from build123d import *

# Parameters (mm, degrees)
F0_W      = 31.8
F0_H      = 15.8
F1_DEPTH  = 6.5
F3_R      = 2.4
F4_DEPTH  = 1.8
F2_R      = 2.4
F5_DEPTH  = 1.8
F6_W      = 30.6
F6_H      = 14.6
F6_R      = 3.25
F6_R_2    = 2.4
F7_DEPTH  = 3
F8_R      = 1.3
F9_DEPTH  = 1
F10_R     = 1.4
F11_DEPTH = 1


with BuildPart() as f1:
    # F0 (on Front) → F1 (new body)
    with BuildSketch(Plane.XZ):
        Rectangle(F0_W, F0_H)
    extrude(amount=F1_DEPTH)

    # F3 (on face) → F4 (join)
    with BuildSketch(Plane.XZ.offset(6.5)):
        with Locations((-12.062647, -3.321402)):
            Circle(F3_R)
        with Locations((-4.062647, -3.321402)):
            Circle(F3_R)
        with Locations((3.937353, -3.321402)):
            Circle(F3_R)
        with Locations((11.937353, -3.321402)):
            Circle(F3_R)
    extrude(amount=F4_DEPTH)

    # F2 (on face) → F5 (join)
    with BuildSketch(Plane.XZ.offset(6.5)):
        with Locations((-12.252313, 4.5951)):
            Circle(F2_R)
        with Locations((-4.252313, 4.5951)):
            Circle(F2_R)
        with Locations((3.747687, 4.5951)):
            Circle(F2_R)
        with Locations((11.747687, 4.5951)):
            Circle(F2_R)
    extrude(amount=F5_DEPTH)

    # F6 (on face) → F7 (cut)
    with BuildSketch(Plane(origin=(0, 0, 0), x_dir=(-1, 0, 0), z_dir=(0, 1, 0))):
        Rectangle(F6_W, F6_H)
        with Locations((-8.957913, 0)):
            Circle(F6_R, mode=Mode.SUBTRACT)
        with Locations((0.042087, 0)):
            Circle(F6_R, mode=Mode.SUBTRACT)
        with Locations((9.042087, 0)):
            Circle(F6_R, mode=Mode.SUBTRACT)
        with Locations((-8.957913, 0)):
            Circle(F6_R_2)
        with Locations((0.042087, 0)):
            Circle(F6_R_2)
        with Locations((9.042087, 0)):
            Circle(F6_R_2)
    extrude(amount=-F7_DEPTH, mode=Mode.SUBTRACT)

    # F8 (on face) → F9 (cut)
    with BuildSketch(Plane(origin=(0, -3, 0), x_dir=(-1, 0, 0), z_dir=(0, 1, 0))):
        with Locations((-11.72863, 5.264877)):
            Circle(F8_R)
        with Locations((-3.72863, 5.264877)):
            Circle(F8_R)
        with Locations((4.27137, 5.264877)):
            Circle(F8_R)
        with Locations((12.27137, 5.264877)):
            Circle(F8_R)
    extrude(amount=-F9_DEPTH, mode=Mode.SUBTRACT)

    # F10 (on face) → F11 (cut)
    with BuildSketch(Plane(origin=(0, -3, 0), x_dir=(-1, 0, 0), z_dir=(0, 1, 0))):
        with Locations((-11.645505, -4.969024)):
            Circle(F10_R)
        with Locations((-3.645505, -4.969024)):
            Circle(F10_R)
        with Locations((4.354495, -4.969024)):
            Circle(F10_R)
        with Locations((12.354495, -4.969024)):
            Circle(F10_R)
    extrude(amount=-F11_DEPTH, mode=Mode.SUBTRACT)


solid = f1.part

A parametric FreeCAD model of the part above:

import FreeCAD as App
import Part
import Sketcher
from FreeCAD import Vector
Q = App.Units.Quantity

doc = App.newDocument("Part")
params = doc.addObject("Spreadsheet::Sheet", "Params")
for row, (alias, value) in enumerate([
    ("sketch1_width", "31.8 mm"),
    ("sketch1_height", "15.8 mm"),
    ("pad1_length", "6.5 mm"),
    ("sketch2_diameter", "4.8 mm"),
    ("pad2_length", "1.8 mm"),
    ("sketch3_diameter", "4.8 mm"),
    ("pad3_length", "1.8 mm"),
    ("sketch4_diameter", "6.5 mm"),
    ("sketch4_diameter2", "4.8 mm"),
    ("sketch4_width", "30.6 mm"),
    ("sketch4_height", "14.6 mm"),
    ("pocket1_length", "3 mm"),
    ("sketch5_diameter", "2.6 mm"),
    ("pocket2_length", "1 mm"),
    ("sketch6_diameter", "2.8 mm"),
    ("pocket3_length", "1 mm"),
], start=1):
    params.set(f"A{row}", alias)
    params.set(f"B{row}", "=" + value)
    params.setAlias(f"B{row}", alias)

body = doc.addObject("PartDesign::Body", "Body")

# Sketch on XZ plane
sketch1 = body.newObject("Sketcher::SketchObject", "Sketch")
sketch1.AttachmentSupport = (doc.getObject("XZ_Plane"), [""])
sketch1.MapMode = "FlatFace"
sketch1.addGeometry([
    Part.LineSegment(Vector(-15.9, 7.9, 0), Vector(-15.9, -7.9, 0)),
    Part.LineSegment(Vector(-15.9, -7.9, 0), Vector(15.9, -7.9, 0)),
    Part.LineSegment(Vector(15.9, -7.9, 0), Vector(15.9, 7.9, 0)),
    Part.LineSegment(Vector(15.9, 7.9, 0), Vector(-15.9, 7.9, 0)),
], False)
sketch1.addConstraint([
    Sketcher.Constraint("Coincident", 0, 2, 1, 1),
    Sketcher.Constraint("Coincident", 1, 2, 2, 1),
    Sketcher.Constraint("Coincident", 2, 2, 3, 1),
    Sketcher.Constraint("Coincident", 3, 2, 0, 1),
    Sketcher.Constraint("Vertical", 0),
    Sketcher.Constraint("Horizontal", 1),
    Sketcher.Constraint("Vertical", 2),
    Sketcher.Constraint("Horizontal", 3),
    Sketcher.Constraint("Symmetric", 0, 2, 2, 2, -1, 1),
    Sketcher.Constraint("DistanceX", 1, 1, 1, 2, Q("31.8 mm")),
    Sketcher.Constraint("DistanceY", 0, 2, 0, 1, Q("15.8 mm")),
])
sketch1.setExpression("Constraints[9]", "Params.sketch1_width")
sketch1.setExpression("Constraints[10]", "Params.sketch1_height")
pad1 = body.newObject("PartDesign::Pad", "Pad")
pad1.Profile = sketch1
pad1.setExpression("Length", "Params.pad1_length")

# Sketch on XZ plane
sketch2 = body.newObject("Sketcher::SketchObject", "Sketch001")
sketch2.AttachmentSupport = (doc.getObject("XZ_Plane"), [""])
sketch2.MapMode = "FlatFace"
sketch2.AttachmentOffset = App.Placement(Vector(0, 0, 6.5), App.Rotation())
sketch2.addGeometry([
    Part.Circle(Vector(-12.062647, -3.321402, 0), Vector(0, 0, 1), 2.4),
    Part.Circle(Vector(-4.062647, -3.321402, 0), Vector(0, 0, 1), 2.4),
    Part.Circle(Vector(3.937353, -3.321402, 0), Vector(0, 0, 1), 2.4),
    Part.Circle(Vector(11.937353, -3.321402, 0), Vector(0, 0, 1), 2.4),
], False)
sketch2.addConstraint([
    Sketcher.Constraint("Equal", 0, 1),
    Sketcher.Constraint("Equal", 1, 2),
    Sketcher.Constraint("Equal", 2, 3),
    Sketcher.Constraint("Horizontal", 0, 3, 1, 3),
    Sketcher.Constraint("Horizontal", 1, 3, 2, 3),
    Sketcher.Constraint("Horizontal", 2, 3, 3, 3),
    Sketcher.Constraint("Diameter", 0, Q("4.8 mm")),
    Sketcher.Constraint("DistanceX", 0, 3, 1, 3, Q("8 mm")),
    Sketcher.Constraint("DistanceX", 1, 3, 2, 3, Q("8 mm")),
    Sketcher.Constraint("DistanceX", 2, 3, 3, 3, Q("8 mm")),
    Sketcher.Constraint("DistanceY", 0, 3, -1, 1, Q("3.321402 mm")),
    Sketcher.Constraint("DistanceX", 0, 3, -1, 1, Q("12.062647 mm")),
])
sketch2.setExpression("Constraints[6]", "Params.sketch2_diameter")
pad2 = body.newObject("PartDesign::Pad", "Pad001")
pad2.Profile = sketch2
pad2.setExpression("Length", "Params.pad2_length")

# Sketch on XZ plane
sketch3 = body.newObject("Sketcher::SketchObject", "Sketch002")
sketch3.AttachmentSupport = (doc.getObject("XZ_Plane"), [""])
sketch3.MapMode = "FlatFace"
sketch3.AttachmentOffset = App.Placement(Vector(0, 0, 6.5), App.Rotation())
sketch3.addGeometry([
    Part.Circle(Vector(-12.252313, 4.5951, 0), Vector(0, 0, 1), 2.4),
    Part.Circle(Vector(-4.252313, 4.5951, 0), Vector(0, 0, 1), 2.4),
    Part.Circle(Vector(3.747687, 4.5951, 0), Vector(0, 0, 1), 2.4),
    Part.Circle(Vector(11.747687, 4.5951, 0), Vector(0, 0, 1), 2.4),
], False)
sketch3.addConstraint([
    Sketcher.Constraint("Equal", 0, 1),
    Sketcher.Constraint("Equal", 1, 2),
    Sketcher.Constraint("Equal", 2, 3),
    Sketcher.Constraint("Horizontal", 0, 3, 1, 3),
    Sketcher.Constraint("Horizontal", 1, 3, 2, 3),
    Sketcher.Constraint("Horizontal", 2, 3, 3, 3),
    Sketcher.Constraint("Diameter", 0, Q("4.8 mm")),
    Sketcher.Constraint("DistanceX", 0, 3, 1, 3, Q("8 mm")),
    Sketcher.Constraint("DistanceX", 1, 3, 2, 3, Q("8 mm")),
    Sketcher.Constraint("DistanceX", 2, 3, 3, 3, Q("8 mm")),
    Sketcher.Constraint("DistanceY", -1, 1, 0, 3, Q("4.5951 mm")),
    Sketcher.Constraint("DistanceX", 0, 3, -1, 1, Q("12.252313 mm")),
])
sketch3.setExpression("Constraints[6]", "Params.sketch3_diameter")
pad3 = body.newObject("PartDesign::Pad", "Pad002")
pad3.Profile = sketch3
pad3.setExpression("Length", "Params.pad3_length")

# Sketch on XZ plane
sketch4 = body.newObject("Sketcher::SketchObject", "Sketch003")
sketch4.AttachmentSupport = (doc.getObject("XZ_Plane"), [""])
sketch4.MapMode = "FlatFace"
sketch4.addGeometry([
    Part.LineSegment(Vector(15.3, 7.3, 0), Vector(15.3, -7.3, 0)),  # 0
    Part.LineSegment(Vector(15.3, -7.3, 0), Vector(-15.3, -7.3, 0)),  # 1
    Part.LineSegment(Vector(-15.3, -7.3, 0), Vector(-15.3, 7.3, 0)),  # 2
    Part.LineSegment(Vector(-15.3, 7.3, 0), Vector(15.3, 7.3, 0)),  # 3
    Part.Circle(Vector(8.957913, 0, 0), Vector(0, 0, 1), 3.25),  # 4
    Part.Circle(Vector(-0.042087, 0, 0), Vector(0, 0, 1), 3.25),  # 5
    Part.Circle(Vector(-9.042087, 0, 0), Vector(0, 0, 1), 3.25),  # 6
    Part.Circle(Vector(8.957913, 0, 0), Vector(0, 0, 1), 2.4),  # 7
    Part.Circle(Vector(-0.042087, 0, 0), Vector(0, 0, 1), 2.4),  # 8
    Part.Circle(Vector(-9.042087, 0, 0), Vector(0, 0, 1), 2.4),  # 9
], False)
sketch4.addConstraint([
    Sketcher.Constraint("Coincident", 0, 2, 1, 1),
    Sketcher.Constraint("Coincident", 1, 2, 2, 1),
    Sketcher.Constraint("Coincident", 2, 2, 3, 1),
    Sketcher.Constraint("Coincident", 3, 2, 0, 1),
    Sketcher.Constraint("Vertical", 0),
    Sketcher.Constraint("Horizontal", 1),
    Sketcher.Constraint("Vertical", 2),
    Sketcher.Constraint("Horizontal", 3),
    Sketcher.Constraint("Coincident", 7, 3, 4, 3),
    Sketcher.Constraint("Coincident", 8, 3, 5, 3),
    Sketcher.Constraint("Coincident", 9, 3, 6, 3),
    Sketcher.Constraint("Equal", 4, 5),
    Sketcher.Constraint("Equal", 5, 6),
    Sketcher.Constraint("Equal", 7, 8),
    Sketcher.Constraint("Equal", 8, 9),
    Sketcher.Constraint("Symmetric", 0, 2, 2, 2, -1, 1),
    Sketcher.Constraint("PointOnObject", 4, 3, -1),
    Sketcher.Constraint("PointOnObject", 5, 3, -1),
    Sketcher.Constraint("PointOnObject", 6, 3, -1),
    Sketcher.Constraint("Diameter", 4, Q("6.5 mm")),
    Sketcher.Constraint("Diameter", 7, Q("4.8 mm")),
    Sketcher.Constraint("DistanceX", 1, 2, 1, 1, Q("30.6 mm")),
    Sketcher.Constraint("DistanceY", 0, 2, 0, 1, Q("14.6 mm")),
    Sketcher.Constraint("DistanceX", 5, 3, 4, 3, Q("9 mm")),
    Sketcher.Constraint("DistanceX", 6, 3, 5, 3, Q("9 mm")),
    Sketcher.Constraint("DistanceX", -1, 1, 4, 3, Q("8.957913 mm")),
])
sketch4.setExpression("Constraints[19]", "Params.sketch4_diameter")
sketch4.setExpression("Constraints[20]", "Params.sketch4_diameter2")
sketch4.setExpression("Constraints[21]", "Params.sketch4_width")
sketch4.setExpression("Constraints[22]", "Params.sketch4_height")
pocket1 = body.newObject("PartDesign::Pocket", "Pocket")
pocket1.Profile = sketch4
pocket1.setExpression("Length", "Params.pocket1_length")
pocket1.Reversed = True

# Sketch on XZ plane
sketch5 = body.newObject("Sketcher::SketchObject", "Sketch004")
sketch5.AttachmentSupport = (doc.getObject("XZ_Plane"), [""])
sketch5.MapMode = "FlatFace"
sketch5.AttachmentOffset = App.Placement(Vector(0, 0, 3), App.Rotation())
sketch5.addGeometry([
    Part.Circle(Vector(11.72863, 5.264877, 0), Vector(0, 0, 1), 1.3),
    Part.Circle(Vector(3.72863, 5.264877, 0), Vector(0, 0, 1), 1.3),
    Part.Circle(Vector(-4.27137, 5.264877, 0), Vector(0, 0, 1), 1.3),
    Part.Circle(Vector(-12.27137, 5.264877, 0), Vector(0, 0, 1), 1.3),
], False)
sketch5.addConstraint([
    Sketcher.Constraint("Equal", 0, 1),
    Sketcher.Constraint("Equal", 1, 2),
    Sketcher.Constraint("Equal", 2, 3),
    Sketcher.Constraint("Horizontal", 0, 3, 1, 3),
    Sketcher.Constraint("Horizontal", 1, 3, 2, 3),
    Sketcher.Constraint("Horizontal", 2, 3, 3, 3),
    Sketcher.Constraint("Diameter", 0, Q("2.6 mm")),
    Sketcher.Constraint("DistanceX", 1, 3, 0, 3, Q("8 mm")),
    Sketcher.Constraint("DistanceX", 2, 3, 1, 3, Q("8 mm")),
    Sketcher.Constraint("DistanceX", 3, 3, 2, 3, Q("8 mm")),
    Sketcher.Constraint("DistanceX", -1, 1, 0, 3, Q("11.72863 mm")),
    Sketcher.Constraint("DistanceY", -1, 1, 0, 3, Q("5.264877 mm")),
])
sketch5.setExpression("Constraints[6]", "Params.sketch5_diameter")
pocket2 = body.newObject("PartDesign::Pocket", "Pocket001")
pocket2.Profile = sketch5
pocket2.setExpression("Length", "Params.pocket2_length")
pocket2.Reversed = True

# Sketch on XZ plane
sketch6 = body.newObject("Sketcher::SketchObject", "Sketch005")
sketch6.AttachmentSupport = (doc.getObject("XZ_Plane"), [""])
sketch6.MapMode = "FlatFace"
sketch6.AttachmentOffset = App.Placement(Vector(0, 0, 3), App.Rotation())
sketch6.addGeometry([
    Part.Circle(Vector(11.645505, -4.969024, 0), Vector(0, 0, 1), 1.4),
    Part.Circle(Vector(3.645505, -4.969024, 0), Vector(0, 0, 1), 1.4),
    Part.Circle(Vector(-4.354495, -4.969024, 0), Vector(0, 0, 1), 1.4),
    Part.Circle(Vector(-12.354495, -4.969024, 0), Vector(0, 0, 1), 1.4),
], False)
sketch6.addConstraint([
    Sketcher.Constraint("Equal", 0, 1),
    Sketcher.Constraint("Equal", 1, 2),
    Sketcher.Constraint("Equal", 2, 3),
    Sketcher.Constraint("Horizontal", 0, 3, 1, 3),
    Sketcher.Constraint("Horizontal", 1, 3, 2, 3),
    Sketcher.Constraint("Horizontal", 2, 3, 3, 3),
    Sketcher.Constraint("Diameter", 0, Q("2.8 mm")),
    Sketcher.Constraint("DistanceX", 1, 3, 0, 3, Q("8 mm")),
    Sketcher.Constraint("DistanceX", 2, 3, 1, 3, Q("8 mm")),
    Sketcher.Constraint("DistanceX", 3, 3, 2, 3, Q("8 mm")),
    Sketcher.Constraint("DistanceX", -1, 1, 0, 3, Q("11.645505 mm")),
    Sketcher.Constraint("DistanceY", 0, 3, -1, 1, Q("4.969024 mm")),
])
sketch6.setExpression("Constraints[6]", "Params.sketch6_diameter")
pocket3 = body.newObject("PartDesign::Pocket", "Pocket002")
pocket3.Profile = sketch6
pocket3.setExpression("Length", "Params.pocket3_length")
pocket3.Reversed = True

doc.recompute()
